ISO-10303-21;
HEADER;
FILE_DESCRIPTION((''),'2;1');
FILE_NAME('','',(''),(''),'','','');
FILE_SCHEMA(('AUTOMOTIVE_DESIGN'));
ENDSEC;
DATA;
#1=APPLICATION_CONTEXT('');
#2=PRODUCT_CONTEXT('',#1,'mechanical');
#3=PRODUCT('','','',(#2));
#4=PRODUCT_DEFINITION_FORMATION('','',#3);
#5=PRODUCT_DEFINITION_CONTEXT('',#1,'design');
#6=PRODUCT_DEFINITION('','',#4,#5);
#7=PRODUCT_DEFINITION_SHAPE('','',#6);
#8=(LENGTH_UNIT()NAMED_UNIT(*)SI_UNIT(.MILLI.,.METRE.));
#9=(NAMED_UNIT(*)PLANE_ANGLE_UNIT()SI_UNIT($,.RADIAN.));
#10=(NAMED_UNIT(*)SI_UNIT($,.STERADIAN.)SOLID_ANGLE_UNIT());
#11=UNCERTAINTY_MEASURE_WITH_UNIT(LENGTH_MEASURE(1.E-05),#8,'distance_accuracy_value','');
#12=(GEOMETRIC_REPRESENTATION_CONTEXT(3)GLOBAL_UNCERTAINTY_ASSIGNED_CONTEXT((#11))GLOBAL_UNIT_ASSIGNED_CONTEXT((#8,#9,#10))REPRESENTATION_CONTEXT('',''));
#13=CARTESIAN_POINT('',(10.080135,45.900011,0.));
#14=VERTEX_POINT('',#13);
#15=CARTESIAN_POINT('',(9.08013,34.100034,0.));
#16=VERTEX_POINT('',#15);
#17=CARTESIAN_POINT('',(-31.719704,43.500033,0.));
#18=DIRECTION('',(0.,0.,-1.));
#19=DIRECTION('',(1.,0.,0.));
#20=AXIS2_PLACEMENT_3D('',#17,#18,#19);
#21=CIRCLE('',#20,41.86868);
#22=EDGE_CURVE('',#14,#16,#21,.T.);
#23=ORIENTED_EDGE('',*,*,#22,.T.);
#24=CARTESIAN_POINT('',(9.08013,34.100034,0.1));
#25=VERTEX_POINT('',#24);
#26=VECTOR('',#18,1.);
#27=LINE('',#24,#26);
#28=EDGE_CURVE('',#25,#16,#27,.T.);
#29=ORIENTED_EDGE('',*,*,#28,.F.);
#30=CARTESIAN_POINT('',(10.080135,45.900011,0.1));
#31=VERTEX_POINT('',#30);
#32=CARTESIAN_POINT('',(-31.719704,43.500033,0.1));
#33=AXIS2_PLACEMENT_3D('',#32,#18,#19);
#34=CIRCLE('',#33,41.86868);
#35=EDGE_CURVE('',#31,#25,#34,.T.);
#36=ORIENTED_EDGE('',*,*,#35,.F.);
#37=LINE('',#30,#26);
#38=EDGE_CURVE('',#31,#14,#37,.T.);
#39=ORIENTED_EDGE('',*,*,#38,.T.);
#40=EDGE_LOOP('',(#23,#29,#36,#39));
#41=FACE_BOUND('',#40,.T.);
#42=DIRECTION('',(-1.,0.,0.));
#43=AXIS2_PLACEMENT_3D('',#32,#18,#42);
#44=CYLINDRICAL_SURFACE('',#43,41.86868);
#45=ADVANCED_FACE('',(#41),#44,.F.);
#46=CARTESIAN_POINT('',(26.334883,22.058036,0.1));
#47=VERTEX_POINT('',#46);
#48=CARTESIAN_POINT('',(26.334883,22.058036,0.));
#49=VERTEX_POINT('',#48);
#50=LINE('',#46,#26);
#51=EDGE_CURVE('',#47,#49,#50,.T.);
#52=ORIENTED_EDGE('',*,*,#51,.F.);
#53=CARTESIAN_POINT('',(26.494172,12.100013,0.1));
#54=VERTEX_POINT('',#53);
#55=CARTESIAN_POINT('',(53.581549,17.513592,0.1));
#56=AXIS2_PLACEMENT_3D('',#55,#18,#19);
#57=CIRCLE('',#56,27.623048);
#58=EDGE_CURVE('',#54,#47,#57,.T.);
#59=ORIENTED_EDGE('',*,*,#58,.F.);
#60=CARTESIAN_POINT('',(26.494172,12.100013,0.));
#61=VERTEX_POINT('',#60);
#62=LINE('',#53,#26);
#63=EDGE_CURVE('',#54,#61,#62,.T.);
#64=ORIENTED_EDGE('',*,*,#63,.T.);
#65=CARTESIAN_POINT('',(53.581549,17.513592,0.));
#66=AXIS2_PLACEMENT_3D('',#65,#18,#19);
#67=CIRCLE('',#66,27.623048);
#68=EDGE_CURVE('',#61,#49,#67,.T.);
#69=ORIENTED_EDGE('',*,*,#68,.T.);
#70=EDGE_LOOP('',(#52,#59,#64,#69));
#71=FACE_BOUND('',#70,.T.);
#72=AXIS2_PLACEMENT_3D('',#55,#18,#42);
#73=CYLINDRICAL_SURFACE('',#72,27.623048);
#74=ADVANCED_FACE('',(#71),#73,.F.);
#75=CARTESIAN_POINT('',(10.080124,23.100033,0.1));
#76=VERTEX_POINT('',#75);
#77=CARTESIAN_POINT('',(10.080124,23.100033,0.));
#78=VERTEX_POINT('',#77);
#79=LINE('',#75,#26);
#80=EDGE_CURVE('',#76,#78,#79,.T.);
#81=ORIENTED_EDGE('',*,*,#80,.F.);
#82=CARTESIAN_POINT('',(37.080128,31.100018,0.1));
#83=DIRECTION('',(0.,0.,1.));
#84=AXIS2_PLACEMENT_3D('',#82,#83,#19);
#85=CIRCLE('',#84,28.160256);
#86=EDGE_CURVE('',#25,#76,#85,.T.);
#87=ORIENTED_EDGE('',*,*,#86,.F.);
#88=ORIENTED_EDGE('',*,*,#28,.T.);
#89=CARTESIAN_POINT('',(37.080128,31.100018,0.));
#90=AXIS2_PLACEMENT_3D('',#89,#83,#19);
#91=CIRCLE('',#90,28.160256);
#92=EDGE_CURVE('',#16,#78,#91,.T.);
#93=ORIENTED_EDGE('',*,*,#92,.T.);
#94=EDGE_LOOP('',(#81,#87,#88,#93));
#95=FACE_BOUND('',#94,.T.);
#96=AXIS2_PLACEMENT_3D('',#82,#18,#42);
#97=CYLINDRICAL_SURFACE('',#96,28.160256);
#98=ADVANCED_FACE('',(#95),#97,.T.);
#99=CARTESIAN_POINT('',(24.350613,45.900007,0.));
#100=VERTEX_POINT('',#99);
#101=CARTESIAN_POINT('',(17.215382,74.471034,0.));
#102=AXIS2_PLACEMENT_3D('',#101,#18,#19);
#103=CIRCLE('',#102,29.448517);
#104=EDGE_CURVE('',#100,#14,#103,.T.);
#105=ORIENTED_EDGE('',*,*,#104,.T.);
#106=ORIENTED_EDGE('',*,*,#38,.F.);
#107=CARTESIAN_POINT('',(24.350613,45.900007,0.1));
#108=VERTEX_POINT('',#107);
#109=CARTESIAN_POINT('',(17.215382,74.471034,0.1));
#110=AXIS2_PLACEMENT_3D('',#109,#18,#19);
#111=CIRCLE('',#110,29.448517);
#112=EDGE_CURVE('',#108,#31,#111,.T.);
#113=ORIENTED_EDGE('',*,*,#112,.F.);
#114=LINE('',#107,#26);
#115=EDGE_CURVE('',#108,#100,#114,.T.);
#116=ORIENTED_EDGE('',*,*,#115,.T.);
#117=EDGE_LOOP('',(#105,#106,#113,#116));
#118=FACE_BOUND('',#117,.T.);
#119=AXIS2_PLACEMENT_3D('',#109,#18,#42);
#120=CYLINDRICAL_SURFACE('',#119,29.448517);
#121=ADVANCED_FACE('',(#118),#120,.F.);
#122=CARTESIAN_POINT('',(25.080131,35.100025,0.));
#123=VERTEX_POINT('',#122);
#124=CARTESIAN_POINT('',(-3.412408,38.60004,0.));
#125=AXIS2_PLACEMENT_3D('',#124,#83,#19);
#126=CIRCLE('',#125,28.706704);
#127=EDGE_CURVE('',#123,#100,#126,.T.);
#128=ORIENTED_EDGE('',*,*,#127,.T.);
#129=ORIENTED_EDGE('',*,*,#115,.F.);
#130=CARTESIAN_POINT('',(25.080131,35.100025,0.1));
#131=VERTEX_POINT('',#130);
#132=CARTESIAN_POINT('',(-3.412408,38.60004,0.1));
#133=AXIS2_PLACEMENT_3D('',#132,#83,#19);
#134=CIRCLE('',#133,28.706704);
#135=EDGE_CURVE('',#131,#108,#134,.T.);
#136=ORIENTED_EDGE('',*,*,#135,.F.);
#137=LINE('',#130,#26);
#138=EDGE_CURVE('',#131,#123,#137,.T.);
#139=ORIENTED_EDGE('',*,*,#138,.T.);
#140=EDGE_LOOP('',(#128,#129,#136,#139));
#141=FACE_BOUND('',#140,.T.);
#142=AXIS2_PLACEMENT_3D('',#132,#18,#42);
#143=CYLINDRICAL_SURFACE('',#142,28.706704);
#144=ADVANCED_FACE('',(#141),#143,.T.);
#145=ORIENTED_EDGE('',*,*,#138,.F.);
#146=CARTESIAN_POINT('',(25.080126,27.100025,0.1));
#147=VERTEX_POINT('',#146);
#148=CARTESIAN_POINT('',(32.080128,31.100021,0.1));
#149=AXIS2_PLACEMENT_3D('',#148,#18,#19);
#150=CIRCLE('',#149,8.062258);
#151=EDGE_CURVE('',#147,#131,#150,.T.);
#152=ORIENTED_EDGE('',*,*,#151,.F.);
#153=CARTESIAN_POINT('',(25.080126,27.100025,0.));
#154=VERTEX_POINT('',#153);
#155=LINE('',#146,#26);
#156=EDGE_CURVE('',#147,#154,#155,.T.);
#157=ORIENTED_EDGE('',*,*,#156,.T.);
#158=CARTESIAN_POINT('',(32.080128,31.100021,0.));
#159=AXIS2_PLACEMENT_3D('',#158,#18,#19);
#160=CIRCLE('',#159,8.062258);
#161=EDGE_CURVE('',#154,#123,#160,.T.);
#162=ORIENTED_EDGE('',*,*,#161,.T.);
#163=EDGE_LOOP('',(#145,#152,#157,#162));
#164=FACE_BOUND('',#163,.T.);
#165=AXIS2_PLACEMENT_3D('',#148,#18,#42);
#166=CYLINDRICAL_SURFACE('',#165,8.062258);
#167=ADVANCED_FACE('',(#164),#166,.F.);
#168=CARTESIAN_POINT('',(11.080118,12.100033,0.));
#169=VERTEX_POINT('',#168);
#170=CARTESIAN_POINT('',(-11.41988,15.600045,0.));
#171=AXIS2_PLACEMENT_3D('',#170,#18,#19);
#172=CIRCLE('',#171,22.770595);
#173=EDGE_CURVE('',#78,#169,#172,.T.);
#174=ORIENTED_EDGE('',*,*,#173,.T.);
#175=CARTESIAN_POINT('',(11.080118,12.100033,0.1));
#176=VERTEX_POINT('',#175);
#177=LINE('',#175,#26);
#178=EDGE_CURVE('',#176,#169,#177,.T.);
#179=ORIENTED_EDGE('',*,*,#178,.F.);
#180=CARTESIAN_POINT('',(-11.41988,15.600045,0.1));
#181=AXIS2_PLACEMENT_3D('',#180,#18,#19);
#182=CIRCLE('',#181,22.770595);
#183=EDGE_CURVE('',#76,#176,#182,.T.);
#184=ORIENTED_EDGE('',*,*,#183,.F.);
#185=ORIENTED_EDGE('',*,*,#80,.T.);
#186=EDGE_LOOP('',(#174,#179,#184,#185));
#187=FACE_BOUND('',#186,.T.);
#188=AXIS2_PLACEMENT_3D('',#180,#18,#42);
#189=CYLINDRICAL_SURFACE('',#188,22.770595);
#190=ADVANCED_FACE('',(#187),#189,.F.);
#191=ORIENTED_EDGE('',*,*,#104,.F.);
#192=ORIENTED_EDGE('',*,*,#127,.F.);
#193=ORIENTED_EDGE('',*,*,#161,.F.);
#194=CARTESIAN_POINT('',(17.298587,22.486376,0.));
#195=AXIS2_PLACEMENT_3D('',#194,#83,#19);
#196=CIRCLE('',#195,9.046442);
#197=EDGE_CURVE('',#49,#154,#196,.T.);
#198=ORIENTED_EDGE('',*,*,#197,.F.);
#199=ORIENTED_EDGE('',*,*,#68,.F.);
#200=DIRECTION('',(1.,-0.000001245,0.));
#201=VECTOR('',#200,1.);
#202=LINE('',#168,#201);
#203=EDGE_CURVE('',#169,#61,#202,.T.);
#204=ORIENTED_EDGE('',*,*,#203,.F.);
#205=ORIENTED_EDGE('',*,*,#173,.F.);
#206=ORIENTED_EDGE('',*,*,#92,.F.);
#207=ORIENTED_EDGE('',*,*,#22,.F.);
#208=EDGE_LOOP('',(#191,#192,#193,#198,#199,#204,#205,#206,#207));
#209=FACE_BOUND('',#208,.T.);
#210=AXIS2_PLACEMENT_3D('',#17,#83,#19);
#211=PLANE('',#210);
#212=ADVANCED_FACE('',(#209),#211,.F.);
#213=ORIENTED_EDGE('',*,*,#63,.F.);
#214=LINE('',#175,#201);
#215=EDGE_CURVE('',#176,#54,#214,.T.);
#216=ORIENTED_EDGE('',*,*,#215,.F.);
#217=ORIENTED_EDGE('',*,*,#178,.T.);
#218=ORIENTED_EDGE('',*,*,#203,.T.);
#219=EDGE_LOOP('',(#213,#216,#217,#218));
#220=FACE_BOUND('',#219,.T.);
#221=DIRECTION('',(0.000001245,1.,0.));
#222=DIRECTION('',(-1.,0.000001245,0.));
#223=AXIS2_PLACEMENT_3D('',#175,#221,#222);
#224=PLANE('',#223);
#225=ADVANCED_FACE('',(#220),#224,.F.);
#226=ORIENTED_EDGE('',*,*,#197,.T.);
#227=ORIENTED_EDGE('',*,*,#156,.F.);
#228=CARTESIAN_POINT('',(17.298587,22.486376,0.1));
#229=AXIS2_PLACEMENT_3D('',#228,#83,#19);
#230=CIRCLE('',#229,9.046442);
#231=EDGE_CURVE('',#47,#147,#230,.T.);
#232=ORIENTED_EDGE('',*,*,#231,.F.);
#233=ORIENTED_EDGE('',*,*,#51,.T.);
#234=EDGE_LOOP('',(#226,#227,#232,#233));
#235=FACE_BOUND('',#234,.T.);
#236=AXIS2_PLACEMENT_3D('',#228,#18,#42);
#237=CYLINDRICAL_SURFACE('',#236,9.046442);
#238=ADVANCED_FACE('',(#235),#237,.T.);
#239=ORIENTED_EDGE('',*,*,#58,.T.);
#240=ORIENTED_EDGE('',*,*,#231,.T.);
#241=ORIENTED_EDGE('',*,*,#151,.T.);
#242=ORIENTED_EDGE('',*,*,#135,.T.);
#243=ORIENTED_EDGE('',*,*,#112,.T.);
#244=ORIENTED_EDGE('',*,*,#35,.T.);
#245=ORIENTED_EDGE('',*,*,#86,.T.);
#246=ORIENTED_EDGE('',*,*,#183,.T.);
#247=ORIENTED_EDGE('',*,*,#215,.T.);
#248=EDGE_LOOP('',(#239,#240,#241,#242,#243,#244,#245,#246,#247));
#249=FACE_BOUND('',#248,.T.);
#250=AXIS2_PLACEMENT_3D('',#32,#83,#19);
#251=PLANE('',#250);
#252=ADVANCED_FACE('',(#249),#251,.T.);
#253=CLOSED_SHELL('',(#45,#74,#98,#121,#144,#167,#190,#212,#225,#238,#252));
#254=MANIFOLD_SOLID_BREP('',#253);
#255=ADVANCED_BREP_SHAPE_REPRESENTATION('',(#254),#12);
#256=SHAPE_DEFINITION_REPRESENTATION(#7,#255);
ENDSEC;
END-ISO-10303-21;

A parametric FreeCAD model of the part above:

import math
import FreeCAD as App
import Part
import Sketcher

V = App.Vector
Q = App.Units.Quantity

doc = App.newDocument("Part")
params = doc.addObject("Spreadsheet::Sheet", "Params")
for row, (alias, value) in enumerate([
    ("pad1_length", "0.1 mm"),
], start=1):
    params.set(f"A{row}", alias)
    params.set(f"B{row}", "=" + value)
    params.setAlias(f"B{row}", alias)

body = doc.addObject("PartDesign::Body", "Body")

# Sketch on XY plane
sketch1 = body.newObject("Sketcher::SketchObject", "Sketch")
sketch1.AttachmentSupport = (doc.getObject("XY_Plane"), [""])
sketch1.MapMode = "FlatFace"
sketch1.addGeometry([
    Part.LineSegment(V(11, 12, 0), V(26, 12, 0)),  # 0
    Part.ArcOfCircle(Part.Circle(V(54, 18, 0), V(0, 0, 1), 28), math.radians(171), math.radians(191)),  # 1
    Part.ArcOfCircle(Part.Circle(V(17, 22, 0), V(0, 0, 1), 9), math.radians(-3), math.radians(31)),  # 2
    Part.ArcOfCircle(Part.Circle(V(32, 31, 0), V(0, 0, 1), 8), math.radians(150), math.radians(210)),  # 3
    Part.ArcOfCircle(Part.Circle(V(-3, 39, 0), V(0, 0, 1), 29), math.radians(-7), math.radians(15)),  # 4
    Part.ArcOfCircle(Part.Circle(V(17, 74, 0), V(0, 0, 1), 29), math.radians(-104), math.radians(-76)),  # 5
    Part.ArcOfCircle(Part.Circle(V(-32, 44, 0), V(0, 0, 1), 42), math.radians(-12.97), math.radians(3.29)),  # 6
    Part.ArcOfCircle(Part.Circle(V(37, 31, 0), V(0, 0, 1), 28), math.radians(174), math.radians(197)),  # 7
    Part.ArcOfCircle(Part.Circle(V(-11, 16, 0), V(0, 0, 1), 23), math.radians(-9), math.radians(19)),  # 8
], False)
sketch1.addConstraint([
    Sketcher.Constraint("Coincident", 0, 2, 1, 2),
    Sketcher.Constraint("Coincident", 1, 1, 2, 1),
    Sketcher.Constraint("Coincident", 2, 2, 3, 2),
    Sketcher.Constraint("Coincident", 3, 1, 4, 1),
    Sketcher.Constraint("Coincident", 4, 2, 5, 2),
    Sketcher.Constraint("Coincident", 5, 1, 6, 2),
    Sketcher.Constraint("Coincident", 6, 1, 7, 1),
    Sketcher.Constraint("Coincident", 7, 2, 8, 2),
    Sketcher.Constraint("Coincident", 8, 1, 0, 1),
    Sketcher.Constraint("DistanceX", 3, 3, 7, 3, Q("5 mm")),
    Sketcher.Constraint("DistanceY", 2, 2, 3, 1, Q("8 mm")),
    Sketcher.Constraint("DistanceX", 6, 1, 3, 1, Q("16.000001 mm")),
    Sketcher.Constraint("DistanceY", 7, 2, 6, 1, Q("11.000001 mm")),
    Sketcher.Constraint("DistanceY", 8, 1, 7, 2, Q("11.000001 mm")),
    Sketcher.Constraint("Radius", 1, Q("27.623049 mm")),
    Sketcher.Constraint("Radius", 2, Q("9.046442 mm")),
    Sketcher.Constraint("Radius", 6, Q("41.86868 mm")),
    Sketcher.Constraint("Radius", 3, Q("8.062258 mm")),
    Sketcher.Constraint("Radius", 4, Q("28.706704 mm")),
    Sketcher.Constraint("Radius", 5, Q("29.448517 mm")),
    Sketcher.Constraint("Radius", 7, Q("28.160256 mm")),
    Sketcher.Constraint("Radius", 8, Q("22.770595 mm")),
    Sketcher.Constraint("DistanceY", 6, 3, 5, 3, Q("30.971001 mm")),
    Sketcher.Constraint("DistanceX", -1, 1, 1, 3, Q("53.581549 mm")),
    Sketcher.Constraint("DistanceY", -1, 1, 1, 3, Q("17.513592 mm")),
    Sketcher.Constraint("DistanceX", -1, 1, 3, 3, Q("32.080128 mm")),
    Sketcher.Constraint("DistanceY", -1, 1, 3, 3, Q("31.100021 mm")),
    Sketcher.Constraint("DistanceY", -1, 1, 4, 3, Q("38.60004 mm")),
    Sketcher.Constraint("DistanceY", -1, 1, 7, 3, Q("31.100018 mm")),
    Sketcher.Constraint("DistanceX", 8, 3, -1, 1, Q("11.41988 mm")),
    Sketcher.Constraint("DistanceX", -1, 1, 3, 1, Q("25.080131 mm")),
    Sketcher.Constraint("DistanceY", -1, 1, 5, 1, Q("45.900011 mm")),
    Sketcher.Constraint("DistanceX", 2, 3, 3, 3, Q("14.781541 mm")),
    Sketcher.Constraint("DistanceX", 4, 3, 5, 3, Q("20.62779 mm")),
    Sketcher.Constraint("DistanceY", 0, 2, 1, 3, Q("5.413578 mm")),
])
pad1 = body.newObject("PartDesign::Pad", "Pad")
pad1.Profile = sketch1
pad1.setExpression("Length", "Params.pad1_length")

doc.recompute()
